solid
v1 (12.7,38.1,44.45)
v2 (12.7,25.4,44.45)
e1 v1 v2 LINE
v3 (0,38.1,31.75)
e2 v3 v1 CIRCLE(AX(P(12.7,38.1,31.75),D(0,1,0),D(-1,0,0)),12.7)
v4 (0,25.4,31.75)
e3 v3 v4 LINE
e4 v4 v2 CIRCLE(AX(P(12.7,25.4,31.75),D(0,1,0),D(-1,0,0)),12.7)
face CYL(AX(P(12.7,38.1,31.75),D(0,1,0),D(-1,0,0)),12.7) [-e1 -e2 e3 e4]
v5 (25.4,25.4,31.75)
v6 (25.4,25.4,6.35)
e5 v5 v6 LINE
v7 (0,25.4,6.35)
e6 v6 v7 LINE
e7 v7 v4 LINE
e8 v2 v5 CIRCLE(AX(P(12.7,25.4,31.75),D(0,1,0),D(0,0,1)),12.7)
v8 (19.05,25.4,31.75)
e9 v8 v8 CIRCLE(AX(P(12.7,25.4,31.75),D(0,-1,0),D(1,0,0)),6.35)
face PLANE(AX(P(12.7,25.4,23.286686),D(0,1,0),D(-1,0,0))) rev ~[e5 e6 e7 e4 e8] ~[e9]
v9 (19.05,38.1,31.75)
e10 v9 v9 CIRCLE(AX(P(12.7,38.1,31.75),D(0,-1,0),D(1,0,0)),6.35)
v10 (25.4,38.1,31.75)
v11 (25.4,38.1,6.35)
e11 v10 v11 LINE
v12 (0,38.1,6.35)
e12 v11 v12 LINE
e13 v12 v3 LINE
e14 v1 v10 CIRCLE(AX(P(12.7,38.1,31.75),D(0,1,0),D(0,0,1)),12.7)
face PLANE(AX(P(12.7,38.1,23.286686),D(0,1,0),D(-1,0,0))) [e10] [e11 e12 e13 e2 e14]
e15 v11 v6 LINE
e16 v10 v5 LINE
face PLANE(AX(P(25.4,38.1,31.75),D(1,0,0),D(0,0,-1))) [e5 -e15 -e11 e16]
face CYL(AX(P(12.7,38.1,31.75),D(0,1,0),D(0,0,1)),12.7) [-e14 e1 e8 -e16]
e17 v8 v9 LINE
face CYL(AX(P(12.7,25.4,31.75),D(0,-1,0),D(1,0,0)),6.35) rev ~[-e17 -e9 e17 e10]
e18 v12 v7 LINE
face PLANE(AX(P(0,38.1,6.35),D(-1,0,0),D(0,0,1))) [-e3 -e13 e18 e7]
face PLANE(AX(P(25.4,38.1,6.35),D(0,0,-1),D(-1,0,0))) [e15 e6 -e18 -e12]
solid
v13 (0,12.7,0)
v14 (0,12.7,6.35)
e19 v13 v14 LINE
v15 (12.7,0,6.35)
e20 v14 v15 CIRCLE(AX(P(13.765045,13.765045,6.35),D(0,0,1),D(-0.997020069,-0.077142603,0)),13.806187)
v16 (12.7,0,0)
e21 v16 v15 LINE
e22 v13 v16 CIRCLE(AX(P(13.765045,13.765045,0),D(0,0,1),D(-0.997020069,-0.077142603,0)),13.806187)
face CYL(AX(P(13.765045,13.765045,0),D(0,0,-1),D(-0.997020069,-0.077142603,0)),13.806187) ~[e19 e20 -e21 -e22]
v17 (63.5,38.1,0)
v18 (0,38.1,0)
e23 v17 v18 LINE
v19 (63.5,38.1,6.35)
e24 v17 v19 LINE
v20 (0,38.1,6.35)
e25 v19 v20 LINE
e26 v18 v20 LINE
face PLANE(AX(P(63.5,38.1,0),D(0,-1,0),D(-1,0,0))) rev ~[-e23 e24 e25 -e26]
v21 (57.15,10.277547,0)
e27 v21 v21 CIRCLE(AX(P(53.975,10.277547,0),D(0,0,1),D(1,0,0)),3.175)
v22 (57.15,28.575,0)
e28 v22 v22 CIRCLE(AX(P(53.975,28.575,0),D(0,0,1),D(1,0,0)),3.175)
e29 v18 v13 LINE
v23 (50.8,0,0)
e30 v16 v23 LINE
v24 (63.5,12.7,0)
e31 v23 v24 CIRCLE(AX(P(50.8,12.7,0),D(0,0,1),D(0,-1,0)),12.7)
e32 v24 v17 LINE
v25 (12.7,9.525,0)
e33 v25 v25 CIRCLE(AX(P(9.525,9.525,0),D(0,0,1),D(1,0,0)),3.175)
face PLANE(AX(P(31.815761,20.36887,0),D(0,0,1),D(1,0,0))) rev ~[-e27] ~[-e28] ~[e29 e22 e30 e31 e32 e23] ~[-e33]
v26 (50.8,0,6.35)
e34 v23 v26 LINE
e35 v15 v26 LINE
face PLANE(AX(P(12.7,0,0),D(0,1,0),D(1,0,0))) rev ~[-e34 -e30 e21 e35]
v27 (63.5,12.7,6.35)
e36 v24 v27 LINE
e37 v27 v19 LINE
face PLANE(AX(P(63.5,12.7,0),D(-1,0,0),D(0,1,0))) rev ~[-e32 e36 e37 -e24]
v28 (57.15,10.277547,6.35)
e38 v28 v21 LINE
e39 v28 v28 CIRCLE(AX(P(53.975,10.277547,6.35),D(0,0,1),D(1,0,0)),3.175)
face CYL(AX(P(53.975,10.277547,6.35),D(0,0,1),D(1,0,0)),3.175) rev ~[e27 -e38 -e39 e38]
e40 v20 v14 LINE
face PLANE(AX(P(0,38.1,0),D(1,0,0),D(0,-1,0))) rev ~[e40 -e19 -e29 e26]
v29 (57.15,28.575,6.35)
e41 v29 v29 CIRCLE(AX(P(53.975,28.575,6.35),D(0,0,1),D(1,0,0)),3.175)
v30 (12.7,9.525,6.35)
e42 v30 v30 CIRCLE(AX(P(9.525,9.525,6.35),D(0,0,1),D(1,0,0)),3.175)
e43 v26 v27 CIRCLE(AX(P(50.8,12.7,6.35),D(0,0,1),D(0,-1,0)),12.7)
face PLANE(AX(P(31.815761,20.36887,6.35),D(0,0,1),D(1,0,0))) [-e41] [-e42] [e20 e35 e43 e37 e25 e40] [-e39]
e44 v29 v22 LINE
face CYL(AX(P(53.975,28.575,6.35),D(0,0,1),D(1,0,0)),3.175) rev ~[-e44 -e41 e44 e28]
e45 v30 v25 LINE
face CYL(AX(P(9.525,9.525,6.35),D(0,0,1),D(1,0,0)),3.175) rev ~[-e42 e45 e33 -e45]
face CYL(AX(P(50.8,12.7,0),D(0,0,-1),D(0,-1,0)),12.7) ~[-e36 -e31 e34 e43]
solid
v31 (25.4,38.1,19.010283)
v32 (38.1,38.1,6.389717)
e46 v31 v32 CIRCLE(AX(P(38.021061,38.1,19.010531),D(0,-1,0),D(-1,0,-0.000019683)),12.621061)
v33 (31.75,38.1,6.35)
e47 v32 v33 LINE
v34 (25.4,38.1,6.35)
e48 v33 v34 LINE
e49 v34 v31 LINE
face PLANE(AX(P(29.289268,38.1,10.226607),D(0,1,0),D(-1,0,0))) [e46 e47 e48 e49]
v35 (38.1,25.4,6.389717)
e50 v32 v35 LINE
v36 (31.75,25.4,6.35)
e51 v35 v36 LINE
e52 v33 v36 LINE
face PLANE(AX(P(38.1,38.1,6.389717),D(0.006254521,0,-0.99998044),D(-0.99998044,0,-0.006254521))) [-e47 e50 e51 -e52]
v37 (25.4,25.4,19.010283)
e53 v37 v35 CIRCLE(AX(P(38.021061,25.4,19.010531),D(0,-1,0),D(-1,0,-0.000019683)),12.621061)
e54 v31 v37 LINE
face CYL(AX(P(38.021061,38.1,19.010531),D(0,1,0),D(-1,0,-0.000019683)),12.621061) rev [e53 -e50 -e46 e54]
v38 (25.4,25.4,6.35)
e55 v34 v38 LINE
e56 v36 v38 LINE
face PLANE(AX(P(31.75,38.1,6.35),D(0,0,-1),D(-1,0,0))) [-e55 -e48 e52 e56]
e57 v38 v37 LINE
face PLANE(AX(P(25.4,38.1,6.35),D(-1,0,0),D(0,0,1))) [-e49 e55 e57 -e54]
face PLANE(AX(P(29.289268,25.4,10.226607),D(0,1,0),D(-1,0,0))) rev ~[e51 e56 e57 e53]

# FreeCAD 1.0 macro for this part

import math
import FreeCAD as App
import Part
import Sketcher
from FreeCAD import Vector
Q = App.Units.Quantity

doc = App.newDocument("Part")
body = doc.addObject("PartDesign::Body", "Body")

# Sketch on XY plane
sketch1 = doc.addObject("Sketcher::SketchObject", "Sketch")
body.addObject(sketch1)
sketch1.AttachmentSupport = (doc.XY_Plane, [""])
sketch1.MapMode = "FlatFace"
sketch1.addGeometry([
    Part.LineSegment(Vector(64, 38, 0), Vector(0, 38, 0)),  # 0
    Part.LineSegment(Vector(0, 38, 0), Vector(0, 13, 0)),  # 1
    Part.ArcOfCircle(Part.Circle(Vector(14, 14, 0), Vector(0, 0, 1), 14), math.radians(-176), math.radians(-94)),  # 2
    Part.LineSegment(Vector(13, 0, 0), Vector(51, 0, 0)),  # 3
    Part.ArcOfCircle(Part.Circle(Vector(51, 13, 0), Vector(0, 0, 1), 13), math.radians(-90), math.radians(0)),  # 4
    Part.LineSegment(Vector(64, 13, 0), Vector(64, 38, 0)),  # 5
], False)
sketch1.addConstraint([
    Sketcher.Constraint("Coincident", 0, 2, 1, 1),
    Sketcher.Constraint("Coincident", 1, 2, 2, 1),
    Sketcher.Constraint("Coincident", 2, 2, 3, 1),
    Sketcher.Constraint("Tangent", 3, 2, 4, 1),
    Sketcher.Constraint("Tangent", 4, 2, 5, 1),
    Sketcher.Constraint("Coincident", 5, 2, 0, 1),
    Sketcher.Constraint("Horizontal", 0),
    Sketcher.Constraint("Vertical", 1),
    Sketcher.Constraint("Horizontal", 3),
    Sketcher.Constraint("Vertical", 5),
    Sketcher.Constraint("PointOnObject", 0, 2, -2),
    Sketcher.Constraint("PointOnObject", 2, 2, -1),
    Sketcher.Constraint("Horizontal", 4, 3, 1, 2),
    Sketcher.Constraint("Radius", 4, Q("0.5 in")),
    Sketcher.Constraint("DistanceY", 1, 2, 1, 1, Q("1 in")),
    Sketcher.Constraint("DistanceX", 0, 2, 0, 1, Q("2.5 in")),
    Sketcher.Constraint("DistanceX", 3, 1, 3, 2, Q("1.5 in")),
    Sketcher.Constraint("Radius", 2, Q("13.806187 mm")),
])
pad1 = doc.addObject("PartDesign::Pad", "Pad")
body.addObject(pad1)
pad1.Profile = sketch1
pad1.Length = Q("0.25 in")

# Sketch on XY plane
sketch2 = doc.addObject("Sketcher::SketchObject", "Sketch001")
body.addObject(sketch2)
sketch2.AttachmentSupport = (doc.XY_Plane, [""])
sketch2.MapMode = "FlatFace"
sketch2.AttachmentOffset = App.Placement(Vector(0, 0, 0.25 * 25.4), App.Rotation())
sketch2.addGeometry([
    Part.Circle(Vector(9.5, 9.5, 0), Vector(0, 0, 1), 3.2),
    Part.Circle(Vector(54, 10.3, 0), Vector(0, 0, 1), 3.2),
    Part.Circle(Vector(54, 28.6, 0), Vector(0, 0, 1), 3.2),
], False)
sketch2.addConstraint([
    Sketcher.Constraint("Equal", 0, 1),
    Sketcher.Constraint("Equal", 1, 2),
    Sketcher.Constraint("Vertical", 1, 3, 2, 3),
    Sketcher.Constraint("Diameter", 0, Q("0.25 in")),
    Sketcher.Constraint("DistanceX", 0, 3, 1, 3, Q("1.75 in")),
    Sketcher.Constraint("DistanceY", 0, 3, 2, 3, Q("0.75 in")),
    Sketcher.Constraint("DistanceX", -1, 1, 0, 3, Q("0.375 in")),
    Sketcher.Constraint("DistanceY", -1, 1, 0, 3, Q("0.375 in")),
    Sketcher.Constraint("DistanceY", -1, 1, 1, 3, Q("10.277547 mm")),
])
pocket1 = doc.addObject("PartDesign::Pocket", "Pocket")
body.addObject(pocket1)
pocket1.Profile = sketch2
pocket1.Length = Q("0.25 in")
body2 = doc.addObject("PartDesign::Body", "Body001")

# Sketch on XZ plane
sketch3 = doc.addObject("Sketcher::SketchObject", "Sketch002")
body2.addObject(sketch3)
sketch3.AttachmentSupport = (doc.getObject("XZ_Plane001"), [""])
sketch3.MapMode = "FlatFace"
sketch3.AttachmentOffset = App.Placement(Vector(0, 0, -1.5 * 25.4), App.Rotation())
sketch3.addGeometry([
    Part.LineSegment(Vector(32, 6, 0), Vector(25, 6, 0)),
    Part.LineSegment(Vector(25, 6, 0), Vector(25, 19, 0)),
    Part.ArcOfCircle(Part.Circle(Vector(38, 19, 0), Vector(0, 0, 1), 13), math.radians(-180), math.radians(-90)),
    Part.LineSegment(Vector(38, 6, 0), Vector(32, 6, 0)),
], False)
sketch3.addConstraint([
    Sketcher.Constraint("Coincident", 0, 2, 1, 1),
    Sketcher.Constraint("Coincident", 1, 2, 2, 1),
    Sketcher.Constraint("Tangent", 2, 2, 3, 1),
    Sketcher.Constraint("Coincident", 3, 2, 0, 1),
    Sketcher.Constraint("Horizontal", 0),
    Sketcher.Constraint("Vertical", 1),
    Sketcher.Constraint("DistanceX", -1, 1, 0, 2, Q("1 in")),
    Sketcher.Constraint("DistanceX", 0, 2, 0, 1, Q("0.25 in")),
    Sketcher.Constraint("DistanceX", -1, 1, 2, 2, Q("1.5 in")),
    Sketcher.Constraint("DistanceY", -1, 1, 0, 2, Q("0.25 in")),
    Sketcher.Constraint("Radius", 2, Q("12.621061 mm")),
    Sketcher.Constraint("DistanceY", 1, 1, 1, 2, Q("12.660283 mm")),
])
pad2 = doc.addObject("PartDesign::Pad", "Pad001")
body2.addObject(pad2)
pad2.Profile = sketch3
pad2.Length = Q("0.5 in")
body3 = doc.addObject("PartDesign::Body", "Body002")

# Sketch on XZ plane
sketch4 = doc.addObject("Sketcher::SketchObject", "Sketch003")
body3.addObject(sketch4)
sketch4.AttachmentSupport = (doc.getObject("XZ_Plane002"), [""])
sketch4.MapMode = "FlatFace"
sketch4.AttachmentOffset = App.Placement(Vector(0, 0, -1.5 * 25.4), App.Rotation())
sketch4.addGeometry([
    Part.LineSegment(Vector(25, 6, 0), Vector(0, 6, 0)),  # 0
    Part.LineSegment(Vector(0, 6, 0), Vector(0, 32, 0)),  # 1
    Part.ArcOfCircle(Part.Circle(Vector(13, 32, 0), Vector(0, 0, 1), 13), math.radians(90), math.radians(180)),  # 2
    Part.ArcOfCircle(Part.Circle(Vector(13, 32, 0), Vector(0, 0, 1), 13), math.radians(0), math.radians(90)),  # 3
    Part.LineSegment(Vector(25, 32, 0), Vector(25, 6, 0)),  # 4
], False)
sketch4.addConstraint([
    Sketcher.Constraint("Coincident", 0, 2, 1, 1),
    Sketcher.Constraint("Tangent", 1, 2, 2, 2),
    Sketcher.Constraint("Tangent", 2, 1, 3, 2),
    Sketcher.Constraint("Tangent", 3, 1, 4, 1),
    Sketcher.Constraint("Coincident", 4, 2, 0, 1),
    Sketcher.Constraint("Horizontal", 0),
    Sketcher.Constraint("Vertical", 1),
    Sketcher.Constraint("Vertical", 4),
    Sketcher.Constraint("Equal", 2, 3),
    Sketcher.Constraint("PointOnObject", 0, 2, -2),
    Sketcher.Constraint("Vertical", 3, 3, 2, 1),
    Sketcher.Constraint("Equal", 0, 1),
    Sketcher.Constraint("Radius", 2, Q("0.5 in")),
    Sketcher.Constraint("DistanceY", -1, 1, 2, 3, Q("1.25 in")),
])
pad3 = doc.addObject("PartDesign::Pad", "Pad002")
body3.addObject(pad3)
pad3.Profile = sketch4
pad3.Length = Q("0.5 in")

# Sketch on XZ plane
sketch5 = doc.addObject("Sketcher::SketchObject", "Sketch004")
body3.addObject(sketch5)
sketch5.AttachmentSupport = (doc.getObject("XZ_Plane002"), [""])
sketch5.MapMode = "FlatFace"
sketch5.AttachmentOffset = App.Placement(Vector(0, 0, -1 * 25.4), App.Rotation())
sketch5.addGeometry(Part.Circle(Vector(13, 32, 0), Vector(0, 0, 1), 6), False)
sketch5.addConstraint([
    Sketcher.Constraint("Diameter", 0, Q("0.5 in")),
    Sketcher.Constraint("DistanceX", -1, 1, 0, 3, Q("0.5 in")),
    Sketcher.Constraint("DistanceY", -1, 1, 0, 3, Q("1.25 in")),
])
pocket2 = doc.addObject("PartDesign::Pocket", "Pocket001")
body3.addObject(pocket2)
pocket2.Profile = sketch5
pocket2.Length = Q("0.5 in")

doc.recompute()
